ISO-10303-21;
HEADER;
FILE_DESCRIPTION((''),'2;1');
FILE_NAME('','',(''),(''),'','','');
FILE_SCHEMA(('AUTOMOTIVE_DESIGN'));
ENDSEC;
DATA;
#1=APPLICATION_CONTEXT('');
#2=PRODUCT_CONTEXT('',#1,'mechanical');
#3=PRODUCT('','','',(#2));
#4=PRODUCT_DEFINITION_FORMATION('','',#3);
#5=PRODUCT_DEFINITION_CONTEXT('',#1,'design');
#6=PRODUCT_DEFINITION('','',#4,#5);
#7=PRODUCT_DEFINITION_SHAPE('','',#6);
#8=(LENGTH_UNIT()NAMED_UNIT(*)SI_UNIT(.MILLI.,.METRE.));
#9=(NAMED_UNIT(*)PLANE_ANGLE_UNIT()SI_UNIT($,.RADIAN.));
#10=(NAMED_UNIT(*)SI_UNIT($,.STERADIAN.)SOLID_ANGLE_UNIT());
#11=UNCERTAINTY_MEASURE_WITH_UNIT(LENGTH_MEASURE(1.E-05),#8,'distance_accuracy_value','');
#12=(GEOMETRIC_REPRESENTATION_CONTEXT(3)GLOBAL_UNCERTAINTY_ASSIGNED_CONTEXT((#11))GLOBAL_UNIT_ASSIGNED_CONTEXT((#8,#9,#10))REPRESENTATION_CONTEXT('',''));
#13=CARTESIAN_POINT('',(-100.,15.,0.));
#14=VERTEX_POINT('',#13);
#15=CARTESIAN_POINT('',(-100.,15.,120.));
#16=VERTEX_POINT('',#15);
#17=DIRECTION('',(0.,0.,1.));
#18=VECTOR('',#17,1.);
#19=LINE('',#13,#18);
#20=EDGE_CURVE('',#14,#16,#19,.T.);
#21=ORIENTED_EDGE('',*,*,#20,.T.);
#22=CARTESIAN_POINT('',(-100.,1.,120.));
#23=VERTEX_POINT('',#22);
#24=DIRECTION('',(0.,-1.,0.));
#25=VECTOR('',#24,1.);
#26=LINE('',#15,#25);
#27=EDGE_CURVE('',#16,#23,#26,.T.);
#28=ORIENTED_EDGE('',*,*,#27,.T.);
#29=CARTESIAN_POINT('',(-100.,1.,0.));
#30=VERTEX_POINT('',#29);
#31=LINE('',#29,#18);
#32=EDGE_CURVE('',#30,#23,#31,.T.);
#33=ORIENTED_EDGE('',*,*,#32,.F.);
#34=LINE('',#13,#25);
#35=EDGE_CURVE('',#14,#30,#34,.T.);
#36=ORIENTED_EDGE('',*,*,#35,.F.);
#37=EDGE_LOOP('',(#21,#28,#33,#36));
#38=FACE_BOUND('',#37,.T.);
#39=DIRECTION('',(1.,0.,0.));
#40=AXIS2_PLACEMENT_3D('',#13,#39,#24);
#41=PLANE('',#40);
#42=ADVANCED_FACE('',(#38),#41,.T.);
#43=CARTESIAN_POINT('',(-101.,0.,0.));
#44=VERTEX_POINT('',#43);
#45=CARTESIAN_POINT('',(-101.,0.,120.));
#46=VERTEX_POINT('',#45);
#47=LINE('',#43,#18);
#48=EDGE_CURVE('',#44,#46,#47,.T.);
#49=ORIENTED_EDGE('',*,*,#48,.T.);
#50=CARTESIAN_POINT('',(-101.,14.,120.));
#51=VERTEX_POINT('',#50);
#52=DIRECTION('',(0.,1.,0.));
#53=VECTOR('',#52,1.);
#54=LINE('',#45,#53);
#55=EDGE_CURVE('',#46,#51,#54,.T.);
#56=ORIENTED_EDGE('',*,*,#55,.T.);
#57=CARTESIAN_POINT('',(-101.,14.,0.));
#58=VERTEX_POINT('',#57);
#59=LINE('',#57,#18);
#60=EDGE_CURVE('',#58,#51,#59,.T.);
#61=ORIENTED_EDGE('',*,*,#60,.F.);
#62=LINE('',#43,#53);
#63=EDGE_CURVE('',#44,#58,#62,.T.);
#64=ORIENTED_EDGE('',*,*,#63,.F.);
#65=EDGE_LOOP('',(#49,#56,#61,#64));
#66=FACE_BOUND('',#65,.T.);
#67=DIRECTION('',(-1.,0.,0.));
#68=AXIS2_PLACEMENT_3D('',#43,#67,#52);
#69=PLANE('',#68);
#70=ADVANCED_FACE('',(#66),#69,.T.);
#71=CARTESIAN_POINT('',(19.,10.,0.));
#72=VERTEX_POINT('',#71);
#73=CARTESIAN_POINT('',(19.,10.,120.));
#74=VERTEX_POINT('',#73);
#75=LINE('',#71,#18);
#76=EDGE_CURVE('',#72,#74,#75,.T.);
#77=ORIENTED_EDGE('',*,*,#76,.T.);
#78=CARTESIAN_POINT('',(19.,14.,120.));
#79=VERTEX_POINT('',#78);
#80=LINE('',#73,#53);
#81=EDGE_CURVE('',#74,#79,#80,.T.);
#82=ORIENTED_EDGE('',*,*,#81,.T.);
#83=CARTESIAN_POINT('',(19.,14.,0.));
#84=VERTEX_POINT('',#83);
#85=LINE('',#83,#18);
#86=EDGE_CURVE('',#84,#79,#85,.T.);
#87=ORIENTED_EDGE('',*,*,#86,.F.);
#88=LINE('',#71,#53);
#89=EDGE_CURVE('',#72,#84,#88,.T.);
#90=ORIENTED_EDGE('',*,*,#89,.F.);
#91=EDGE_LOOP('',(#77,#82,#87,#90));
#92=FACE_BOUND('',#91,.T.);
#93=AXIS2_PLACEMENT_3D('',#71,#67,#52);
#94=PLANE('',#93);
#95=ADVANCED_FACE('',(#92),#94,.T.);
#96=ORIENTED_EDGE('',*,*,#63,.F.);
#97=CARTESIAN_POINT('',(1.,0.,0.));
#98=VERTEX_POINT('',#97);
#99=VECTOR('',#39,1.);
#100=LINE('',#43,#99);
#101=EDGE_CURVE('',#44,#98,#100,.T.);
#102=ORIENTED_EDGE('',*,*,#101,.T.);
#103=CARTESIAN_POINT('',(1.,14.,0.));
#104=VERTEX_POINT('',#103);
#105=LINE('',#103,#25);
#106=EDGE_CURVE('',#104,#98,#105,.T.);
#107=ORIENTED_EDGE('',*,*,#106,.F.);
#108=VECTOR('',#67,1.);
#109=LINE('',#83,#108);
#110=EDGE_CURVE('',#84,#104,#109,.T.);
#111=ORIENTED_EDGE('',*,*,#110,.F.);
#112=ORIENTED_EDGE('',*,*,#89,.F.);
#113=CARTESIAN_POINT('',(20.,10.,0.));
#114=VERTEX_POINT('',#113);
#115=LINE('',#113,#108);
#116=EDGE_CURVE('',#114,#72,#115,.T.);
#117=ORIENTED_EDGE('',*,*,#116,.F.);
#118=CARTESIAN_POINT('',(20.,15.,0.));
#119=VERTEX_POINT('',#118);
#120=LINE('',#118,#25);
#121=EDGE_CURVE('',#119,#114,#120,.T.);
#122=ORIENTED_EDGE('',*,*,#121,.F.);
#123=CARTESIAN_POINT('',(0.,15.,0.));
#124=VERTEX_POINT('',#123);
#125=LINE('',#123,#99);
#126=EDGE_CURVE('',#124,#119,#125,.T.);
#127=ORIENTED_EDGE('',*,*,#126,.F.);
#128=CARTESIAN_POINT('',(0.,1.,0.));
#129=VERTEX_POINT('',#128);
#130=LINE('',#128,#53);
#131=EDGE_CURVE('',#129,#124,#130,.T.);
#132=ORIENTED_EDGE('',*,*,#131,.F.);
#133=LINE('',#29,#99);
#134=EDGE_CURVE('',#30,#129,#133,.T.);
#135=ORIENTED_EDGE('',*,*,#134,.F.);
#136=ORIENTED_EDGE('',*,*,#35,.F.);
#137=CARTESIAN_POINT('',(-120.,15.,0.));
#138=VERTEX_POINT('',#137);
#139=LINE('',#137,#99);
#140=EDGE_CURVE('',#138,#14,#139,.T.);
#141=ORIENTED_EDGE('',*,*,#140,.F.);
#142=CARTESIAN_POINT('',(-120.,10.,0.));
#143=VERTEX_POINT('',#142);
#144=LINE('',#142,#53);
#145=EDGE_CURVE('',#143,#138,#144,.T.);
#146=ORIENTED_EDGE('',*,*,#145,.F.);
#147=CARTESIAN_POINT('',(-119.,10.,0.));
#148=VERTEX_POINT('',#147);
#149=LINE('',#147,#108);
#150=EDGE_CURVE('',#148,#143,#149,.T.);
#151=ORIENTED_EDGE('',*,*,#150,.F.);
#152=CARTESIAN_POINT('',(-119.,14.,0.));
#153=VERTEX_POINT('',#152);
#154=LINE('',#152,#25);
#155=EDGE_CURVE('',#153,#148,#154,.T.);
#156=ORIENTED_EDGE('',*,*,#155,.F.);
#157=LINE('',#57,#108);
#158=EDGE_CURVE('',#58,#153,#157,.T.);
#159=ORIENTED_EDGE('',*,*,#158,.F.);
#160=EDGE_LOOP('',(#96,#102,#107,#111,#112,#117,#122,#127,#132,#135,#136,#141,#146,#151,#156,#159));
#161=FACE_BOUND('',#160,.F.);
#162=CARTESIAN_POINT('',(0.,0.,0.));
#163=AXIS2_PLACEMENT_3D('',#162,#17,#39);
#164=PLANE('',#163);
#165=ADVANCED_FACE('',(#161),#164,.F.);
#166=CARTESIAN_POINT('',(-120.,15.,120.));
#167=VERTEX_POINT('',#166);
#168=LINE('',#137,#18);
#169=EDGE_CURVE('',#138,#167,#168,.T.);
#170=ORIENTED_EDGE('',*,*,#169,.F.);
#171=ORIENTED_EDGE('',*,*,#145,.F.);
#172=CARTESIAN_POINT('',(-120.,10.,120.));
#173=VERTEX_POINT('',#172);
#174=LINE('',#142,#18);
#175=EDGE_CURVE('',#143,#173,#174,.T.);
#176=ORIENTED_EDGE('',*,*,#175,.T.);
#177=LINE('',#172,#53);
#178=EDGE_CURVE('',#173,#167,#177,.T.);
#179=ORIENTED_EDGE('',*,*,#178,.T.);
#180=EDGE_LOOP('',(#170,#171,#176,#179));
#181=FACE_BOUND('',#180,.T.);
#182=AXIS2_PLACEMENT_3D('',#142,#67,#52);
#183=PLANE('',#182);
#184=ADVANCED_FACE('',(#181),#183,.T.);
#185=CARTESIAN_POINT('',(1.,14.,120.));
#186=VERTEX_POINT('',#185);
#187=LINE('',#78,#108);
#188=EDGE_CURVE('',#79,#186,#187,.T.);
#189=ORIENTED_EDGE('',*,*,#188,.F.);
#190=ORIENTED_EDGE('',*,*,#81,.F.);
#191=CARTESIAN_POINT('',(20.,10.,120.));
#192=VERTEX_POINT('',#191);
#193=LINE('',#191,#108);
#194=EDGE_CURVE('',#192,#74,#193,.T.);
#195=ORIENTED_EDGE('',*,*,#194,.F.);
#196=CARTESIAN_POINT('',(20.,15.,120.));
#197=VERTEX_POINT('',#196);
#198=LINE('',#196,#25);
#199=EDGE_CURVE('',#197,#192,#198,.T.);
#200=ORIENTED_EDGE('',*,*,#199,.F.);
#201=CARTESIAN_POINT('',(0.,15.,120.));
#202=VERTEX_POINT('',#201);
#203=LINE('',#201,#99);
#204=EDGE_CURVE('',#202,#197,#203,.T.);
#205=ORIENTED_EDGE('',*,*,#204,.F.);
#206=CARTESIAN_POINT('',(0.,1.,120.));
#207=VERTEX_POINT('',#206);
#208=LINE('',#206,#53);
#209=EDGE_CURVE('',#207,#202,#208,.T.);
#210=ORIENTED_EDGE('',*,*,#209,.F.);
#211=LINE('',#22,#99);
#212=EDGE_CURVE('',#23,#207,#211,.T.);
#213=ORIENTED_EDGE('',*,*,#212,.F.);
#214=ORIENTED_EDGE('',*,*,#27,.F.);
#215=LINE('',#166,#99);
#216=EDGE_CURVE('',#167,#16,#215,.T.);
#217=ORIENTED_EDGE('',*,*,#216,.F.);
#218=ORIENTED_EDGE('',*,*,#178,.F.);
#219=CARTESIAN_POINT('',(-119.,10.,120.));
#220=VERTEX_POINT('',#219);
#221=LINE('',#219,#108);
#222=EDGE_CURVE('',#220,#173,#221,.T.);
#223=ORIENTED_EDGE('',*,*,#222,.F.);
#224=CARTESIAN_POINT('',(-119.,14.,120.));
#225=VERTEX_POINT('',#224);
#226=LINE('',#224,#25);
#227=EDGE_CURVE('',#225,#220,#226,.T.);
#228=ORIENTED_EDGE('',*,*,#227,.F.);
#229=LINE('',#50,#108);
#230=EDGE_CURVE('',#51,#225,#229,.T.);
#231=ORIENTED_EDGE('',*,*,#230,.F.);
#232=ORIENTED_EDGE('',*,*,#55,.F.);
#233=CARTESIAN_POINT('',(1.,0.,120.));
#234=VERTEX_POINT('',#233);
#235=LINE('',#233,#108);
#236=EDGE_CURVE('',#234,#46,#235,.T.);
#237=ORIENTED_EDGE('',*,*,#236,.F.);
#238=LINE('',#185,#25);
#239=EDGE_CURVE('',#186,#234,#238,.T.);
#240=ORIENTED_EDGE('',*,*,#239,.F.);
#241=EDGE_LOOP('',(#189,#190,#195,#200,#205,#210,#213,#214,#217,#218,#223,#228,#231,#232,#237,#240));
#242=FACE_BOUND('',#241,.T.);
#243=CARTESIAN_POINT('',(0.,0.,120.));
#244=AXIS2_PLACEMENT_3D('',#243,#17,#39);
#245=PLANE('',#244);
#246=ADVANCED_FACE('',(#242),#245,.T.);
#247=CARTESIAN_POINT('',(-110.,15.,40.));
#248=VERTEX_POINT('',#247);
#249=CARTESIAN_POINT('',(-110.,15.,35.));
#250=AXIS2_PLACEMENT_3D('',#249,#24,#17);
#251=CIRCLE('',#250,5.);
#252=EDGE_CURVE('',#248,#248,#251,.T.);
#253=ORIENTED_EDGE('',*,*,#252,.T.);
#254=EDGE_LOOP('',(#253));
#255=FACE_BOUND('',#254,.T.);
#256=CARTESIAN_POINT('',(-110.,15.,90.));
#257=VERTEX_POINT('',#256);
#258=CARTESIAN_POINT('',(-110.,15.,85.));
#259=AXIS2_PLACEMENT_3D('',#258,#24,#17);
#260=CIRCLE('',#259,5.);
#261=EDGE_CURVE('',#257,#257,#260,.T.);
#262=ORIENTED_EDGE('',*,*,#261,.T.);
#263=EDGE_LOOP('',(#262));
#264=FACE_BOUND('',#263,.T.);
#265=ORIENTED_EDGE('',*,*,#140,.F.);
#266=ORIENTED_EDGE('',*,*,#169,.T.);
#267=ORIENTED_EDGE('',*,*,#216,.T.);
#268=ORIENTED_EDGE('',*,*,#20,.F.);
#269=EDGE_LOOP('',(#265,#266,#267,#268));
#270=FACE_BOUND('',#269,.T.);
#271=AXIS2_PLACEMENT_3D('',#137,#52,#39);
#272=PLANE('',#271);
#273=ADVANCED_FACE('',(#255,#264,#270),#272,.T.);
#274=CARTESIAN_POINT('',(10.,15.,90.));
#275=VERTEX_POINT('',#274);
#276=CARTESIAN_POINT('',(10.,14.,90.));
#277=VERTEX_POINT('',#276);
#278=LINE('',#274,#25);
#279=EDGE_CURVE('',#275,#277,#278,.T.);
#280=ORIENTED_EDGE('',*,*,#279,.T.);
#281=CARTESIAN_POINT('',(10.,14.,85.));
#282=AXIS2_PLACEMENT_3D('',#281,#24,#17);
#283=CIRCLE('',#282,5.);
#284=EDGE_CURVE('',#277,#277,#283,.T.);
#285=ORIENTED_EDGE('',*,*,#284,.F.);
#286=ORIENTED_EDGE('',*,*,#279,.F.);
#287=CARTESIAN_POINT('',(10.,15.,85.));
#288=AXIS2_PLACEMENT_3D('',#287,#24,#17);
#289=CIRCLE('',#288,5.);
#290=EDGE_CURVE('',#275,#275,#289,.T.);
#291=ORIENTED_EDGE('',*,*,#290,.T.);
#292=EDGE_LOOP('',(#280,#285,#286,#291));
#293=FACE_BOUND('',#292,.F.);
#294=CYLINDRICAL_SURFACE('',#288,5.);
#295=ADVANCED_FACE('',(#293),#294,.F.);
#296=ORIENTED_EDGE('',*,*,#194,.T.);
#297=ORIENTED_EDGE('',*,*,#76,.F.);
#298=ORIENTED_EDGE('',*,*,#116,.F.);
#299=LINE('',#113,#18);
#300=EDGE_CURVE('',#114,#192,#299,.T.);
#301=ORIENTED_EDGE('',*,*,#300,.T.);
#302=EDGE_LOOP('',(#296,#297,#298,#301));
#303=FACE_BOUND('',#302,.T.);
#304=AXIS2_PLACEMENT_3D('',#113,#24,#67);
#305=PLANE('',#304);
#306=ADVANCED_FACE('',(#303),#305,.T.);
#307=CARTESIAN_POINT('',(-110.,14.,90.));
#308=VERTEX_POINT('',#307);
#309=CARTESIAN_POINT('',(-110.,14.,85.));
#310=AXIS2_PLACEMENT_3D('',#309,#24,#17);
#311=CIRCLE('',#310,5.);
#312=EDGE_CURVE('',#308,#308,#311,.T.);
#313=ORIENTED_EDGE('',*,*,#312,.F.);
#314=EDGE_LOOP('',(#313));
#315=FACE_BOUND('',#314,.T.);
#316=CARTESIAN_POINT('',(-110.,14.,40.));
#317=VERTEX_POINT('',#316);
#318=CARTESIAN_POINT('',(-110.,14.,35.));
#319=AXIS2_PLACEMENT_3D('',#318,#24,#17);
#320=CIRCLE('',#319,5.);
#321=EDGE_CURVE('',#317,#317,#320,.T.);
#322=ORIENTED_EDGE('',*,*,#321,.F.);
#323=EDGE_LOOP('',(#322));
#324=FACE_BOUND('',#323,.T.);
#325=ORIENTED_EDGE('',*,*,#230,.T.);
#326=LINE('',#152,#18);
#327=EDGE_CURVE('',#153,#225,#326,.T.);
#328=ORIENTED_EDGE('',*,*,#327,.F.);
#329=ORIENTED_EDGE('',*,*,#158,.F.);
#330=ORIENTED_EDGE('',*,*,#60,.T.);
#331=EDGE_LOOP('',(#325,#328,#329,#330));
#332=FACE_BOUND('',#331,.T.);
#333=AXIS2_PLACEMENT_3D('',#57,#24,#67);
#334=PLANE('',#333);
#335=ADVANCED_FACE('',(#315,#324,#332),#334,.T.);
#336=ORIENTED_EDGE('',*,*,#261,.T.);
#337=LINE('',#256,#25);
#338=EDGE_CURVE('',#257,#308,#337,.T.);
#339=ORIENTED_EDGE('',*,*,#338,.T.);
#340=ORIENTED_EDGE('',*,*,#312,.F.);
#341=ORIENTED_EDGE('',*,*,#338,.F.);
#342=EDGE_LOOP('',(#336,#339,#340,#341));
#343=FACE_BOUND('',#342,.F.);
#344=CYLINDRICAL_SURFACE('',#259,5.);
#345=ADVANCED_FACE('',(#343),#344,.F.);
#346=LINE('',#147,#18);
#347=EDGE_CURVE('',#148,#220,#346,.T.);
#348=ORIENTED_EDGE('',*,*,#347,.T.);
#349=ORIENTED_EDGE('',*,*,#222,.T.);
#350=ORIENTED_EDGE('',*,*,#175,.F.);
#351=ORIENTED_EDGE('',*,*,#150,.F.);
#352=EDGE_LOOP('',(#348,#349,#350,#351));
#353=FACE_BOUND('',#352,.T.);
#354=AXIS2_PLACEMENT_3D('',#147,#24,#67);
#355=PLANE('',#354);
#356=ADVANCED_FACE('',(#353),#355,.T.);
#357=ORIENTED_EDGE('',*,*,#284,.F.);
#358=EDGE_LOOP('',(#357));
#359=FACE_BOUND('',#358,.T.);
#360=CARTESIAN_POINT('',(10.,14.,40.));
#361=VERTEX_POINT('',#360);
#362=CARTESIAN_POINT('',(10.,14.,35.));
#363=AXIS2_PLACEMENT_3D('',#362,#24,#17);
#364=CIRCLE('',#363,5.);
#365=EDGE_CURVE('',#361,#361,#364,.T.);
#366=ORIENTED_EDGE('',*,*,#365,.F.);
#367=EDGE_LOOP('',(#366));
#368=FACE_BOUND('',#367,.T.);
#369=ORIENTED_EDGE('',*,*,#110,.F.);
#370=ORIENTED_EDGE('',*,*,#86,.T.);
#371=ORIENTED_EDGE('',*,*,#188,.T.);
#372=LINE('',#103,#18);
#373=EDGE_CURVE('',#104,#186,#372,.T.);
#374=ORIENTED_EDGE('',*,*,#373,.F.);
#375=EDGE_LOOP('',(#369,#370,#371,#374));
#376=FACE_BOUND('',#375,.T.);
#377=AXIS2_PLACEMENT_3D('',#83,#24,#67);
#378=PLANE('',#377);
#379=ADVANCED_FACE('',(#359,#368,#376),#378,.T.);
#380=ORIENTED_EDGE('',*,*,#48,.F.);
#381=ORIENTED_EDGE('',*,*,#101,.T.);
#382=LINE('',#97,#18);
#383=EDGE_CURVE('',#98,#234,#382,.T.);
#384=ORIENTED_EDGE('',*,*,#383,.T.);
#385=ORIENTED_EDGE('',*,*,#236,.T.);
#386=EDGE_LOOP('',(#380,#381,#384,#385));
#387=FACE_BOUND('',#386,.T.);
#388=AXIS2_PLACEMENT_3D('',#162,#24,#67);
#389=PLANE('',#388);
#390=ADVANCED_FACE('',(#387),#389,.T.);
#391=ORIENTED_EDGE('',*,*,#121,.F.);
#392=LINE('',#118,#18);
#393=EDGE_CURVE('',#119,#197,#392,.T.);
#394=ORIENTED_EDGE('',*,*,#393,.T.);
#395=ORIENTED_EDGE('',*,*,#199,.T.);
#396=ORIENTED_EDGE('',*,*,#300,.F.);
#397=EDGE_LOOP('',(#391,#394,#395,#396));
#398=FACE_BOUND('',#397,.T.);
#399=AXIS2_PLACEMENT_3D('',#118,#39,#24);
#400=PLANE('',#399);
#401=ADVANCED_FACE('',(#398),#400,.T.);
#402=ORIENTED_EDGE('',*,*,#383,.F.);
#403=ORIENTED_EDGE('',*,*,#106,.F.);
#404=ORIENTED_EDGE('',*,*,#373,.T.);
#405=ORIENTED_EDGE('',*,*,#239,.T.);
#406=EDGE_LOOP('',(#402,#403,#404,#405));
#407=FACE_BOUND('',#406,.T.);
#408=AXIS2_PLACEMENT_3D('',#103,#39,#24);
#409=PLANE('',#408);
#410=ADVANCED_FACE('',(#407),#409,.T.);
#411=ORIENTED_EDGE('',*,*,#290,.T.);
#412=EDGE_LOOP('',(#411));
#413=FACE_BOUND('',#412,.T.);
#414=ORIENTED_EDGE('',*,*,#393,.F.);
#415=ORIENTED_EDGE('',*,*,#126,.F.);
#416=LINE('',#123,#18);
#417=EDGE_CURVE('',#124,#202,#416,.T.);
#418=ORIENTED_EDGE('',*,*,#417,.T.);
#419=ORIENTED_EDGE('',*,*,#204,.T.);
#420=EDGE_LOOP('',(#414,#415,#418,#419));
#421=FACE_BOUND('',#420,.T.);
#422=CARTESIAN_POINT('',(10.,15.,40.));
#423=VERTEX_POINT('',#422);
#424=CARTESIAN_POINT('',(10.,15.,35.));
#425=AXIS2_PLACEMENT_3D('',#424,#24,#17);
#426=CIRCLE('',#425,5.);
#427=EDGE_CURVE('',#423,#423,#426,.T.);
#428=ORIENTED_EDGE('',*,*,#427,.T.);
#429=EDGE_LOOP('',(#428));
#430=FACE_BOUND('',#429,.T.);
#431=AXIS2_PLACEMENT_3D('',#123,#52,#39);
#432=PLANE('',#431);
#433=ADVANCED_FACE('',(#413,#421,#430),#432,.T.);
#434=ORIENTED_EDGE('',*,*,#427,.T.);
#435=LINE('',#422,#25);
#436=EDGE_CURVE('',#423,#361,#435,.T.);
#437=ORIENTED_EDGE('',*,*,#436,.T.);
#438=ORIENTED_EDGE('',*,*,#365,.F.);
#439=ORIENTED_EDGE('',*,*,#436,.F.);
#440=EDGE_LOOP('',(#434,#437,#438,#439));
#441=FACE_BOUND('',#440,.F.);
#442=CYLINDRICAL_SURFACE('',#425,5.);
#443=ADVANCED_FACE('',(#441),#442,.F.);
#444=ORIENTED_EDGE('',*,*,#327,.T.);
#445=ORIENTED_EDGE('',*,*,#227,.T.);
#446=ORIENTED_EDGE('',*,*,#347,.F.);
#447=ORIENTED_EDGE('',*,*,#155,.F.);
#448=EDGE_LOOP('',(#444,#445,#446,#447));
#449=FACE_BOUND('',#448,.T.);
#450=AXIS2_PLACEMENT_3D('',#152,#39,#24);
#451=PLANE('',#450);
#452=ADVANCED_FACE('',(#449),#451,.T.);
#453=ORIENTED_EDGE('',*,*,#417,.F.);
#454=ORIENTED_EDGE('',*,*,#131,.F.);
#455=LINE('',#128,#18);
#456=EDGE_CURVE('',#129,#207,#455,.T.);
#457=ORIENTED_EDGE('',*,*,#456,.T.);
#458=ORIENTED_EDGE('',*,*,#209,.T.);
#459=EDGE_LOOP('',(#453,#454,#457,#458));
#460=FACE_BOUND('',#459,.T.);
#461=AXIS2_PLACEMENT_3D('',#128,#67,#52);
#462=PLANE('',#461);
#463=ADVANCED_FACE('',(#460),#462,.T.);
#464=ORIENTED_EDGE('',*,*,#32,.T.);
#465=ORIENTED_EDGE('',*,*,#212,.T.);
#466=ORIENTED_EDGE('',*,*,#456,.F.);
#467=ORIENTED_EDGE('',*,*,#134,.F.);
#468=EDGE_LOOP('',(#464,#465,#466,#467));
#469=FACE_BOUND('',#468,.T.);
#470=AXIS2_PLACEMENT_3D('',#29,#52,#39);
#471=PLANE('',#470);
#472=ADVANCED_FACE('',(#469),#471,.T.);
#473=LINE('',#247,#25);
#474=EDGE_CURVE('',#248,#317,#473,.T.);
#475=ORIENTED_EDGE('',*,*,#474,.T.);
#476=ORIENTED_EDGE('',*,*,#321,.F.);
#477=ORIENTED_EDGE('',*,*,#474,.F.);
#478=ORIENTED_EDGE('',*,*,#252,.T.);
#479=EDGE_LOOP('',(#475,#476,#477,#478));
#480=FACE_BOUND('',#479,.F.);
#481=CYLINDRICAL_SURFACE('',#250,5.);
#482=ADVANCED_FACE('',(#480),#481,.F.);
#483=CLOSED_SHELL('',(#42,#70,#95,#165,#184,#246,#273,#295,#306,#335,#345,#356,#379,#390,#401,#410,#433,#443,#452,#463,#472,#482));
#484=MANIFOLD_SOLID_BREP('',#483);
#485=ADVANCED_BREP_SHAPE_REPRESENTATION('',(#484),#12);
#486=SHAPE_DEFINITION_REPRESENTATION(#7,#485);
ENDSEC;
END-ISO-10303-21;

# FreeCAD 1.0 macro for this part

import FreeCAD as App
import Part
import Sketcher


def add_polygon(sketch, points):
    """Adds a closed chain of lines whose ends are joined by coincident constraints."""
    first, n = sketch.GeometryCount, len(points)
    for a, b in zip(points, points[1:] + points[:1]):
        sketch.addGeometry(Part.LineSegment(App.Vector(*a, 0), App.Vector(*b, 0)), False)
    for i in range(n):
        sketch.addConstraint(Sketcher.Constraint("Coincident", first + i, 2, first + (i + 1) % n, 1))

doc = App.newDocument("Part")
body = doc.addObject("PartDesign::Body", "Body")

# Sketch on XY plane
sketch1 = body.newObject("Sketcher::SketchObject", "Sketch")
sketch1.AttachmentSupport = (doc.getObject("XY_Plane"), [""])
sketch1.MapMode = "FlatFace"
add_polygon(sketch1, [(-101, 0), (1, 0), (1, 14), (19, 14), (19, 10), (20, 10), (20, 15), (0, 15), (0, 1), (-100, 1), (-100, 15), (-120, 15), (-120, 10), (-119, 10), (-119, 14), (-101, 14)])  # lines 0-15
sketch1.addConstraint([
    Sketcher.Constraint("Horizontal", 0),
    Sketcher.Constraint("Vertical", 1),
    Sketcher.Constraint("Horizontal", 2),
    Sketcher.Constraint("Vertical", 3),
    Sketcher.Constraint("Horizontal", 4),
    Sketcher.Constraint("Vertical", 5),
    Sketcher.Constraint("Horizontal", 6),
    Sketcher.Constraint("Vertical", 7),
    Sketcher.Constraint("Horizontal", 8),
    Sketcher.Constraint("Vertical", 9),
    Sketcher.Constraint("Horizontal", 10),
    Sketcher.Constraint("Vertical", 11),
    Sketcher.Constraint("Horizontal", 12),
    Sketcher.Constraint("Vertical", 13),
    Sketcher.Constraint("Horizontal", 14),
    Sketcher.Constraint("Vertical", 15),
    Sketcher.Constraint("PointOnObject", 0, 2, -1),
    Sketcher.Constraint("PointOnObject", 6, 2, -2),
    Sketcher.Constraint("Horizontal", 6, 2, 9, 2),
    Sketcher.Constraint("Horizontal", 4, 2, 11, 2),
    Sketcher.Constraint("Horizontal", 2, 2, 13, 2),
    Sketcher.Constraint("Equal", 6, 10),
    Sketcher.Constraint("Equal", 4, 12),
    Sketcher.Constraint("Equal", 2, 14),
    Sketcher.Constraint("Equal", 1, 7),
    Sketcher.Constraint("DistanceX", 0, 1, 0, 2, 102.0),
    Sketcher.Constraint("DistanceX", 2, 1, 2, 2, 18.0),
    Sketcher.Constraint("DistanceX", 4, 1, 4, 2, 1.0),
    Sketcher.Constraint("DistanceX", 6, 2, 6, 1, 20.0),
    Sketcher.Constraint("DistanceY", 1, 1, 1, 2, 14.0),
    Sketcher.Constraint("DistanceY", 3, 2, 3, 1, 4.0),
    Sketcher.Constraint("DistanceY", 5, 1, 5, 2, 5.0),
])
pad1 = body.newObject("PartDesign::Pad", "Pad")
pad1.Profile = sketch1
pad1.Length = 120

# Sketch on XZ plane
sketch2 = body.newObject("Sketcher::SketchObject", "Sketch001")
sketch2.AttachmentSupport = (doc.getObject("XZ_Plane"), [""])
sketch2.MapMode = "FlatFace"
sketch2.AttachmentOffset = App.Placement(App.Vector(0, 0, -15), App.Rotation())
sketch2.addGeometry([
    Part.Circle(App.Vector(10, 85, 0), App.Vector(0, 0, 1), 5),
    Part.Circle(App.Vector(10, 35, 0), App.Vector(0, 0, 1), 5),
    Part.Circle(App.Vector(-110, 35, 0), App.Vector(0, 0, 1), 5),
    Part.Circle(App.Vector(-110, 85, 0), App.Vector(0, 0, 1), 5),
], False)
sketch2.addConstraint([
    Sketcher.Constraint("Equal", 0, 1),
    Sketcher.Constraint("Equal", 1, 2),
    Sketcher.Constraint("Equal", 2, 3),
    Sketcher.Constraint("Horizontal", 1, 3, 2, 3),
    Sketcher.Constraint("Horizontal", 0, 3, 3, 3),
    Sketcher.Constraint("Vertical", 0, 3, 1, 3),
    Sketcher.Constraint("Vertical", 2, 3, 3, 3),
    Sketcher.Constraint("Diameter", 0, 10.0),
    Sketcher.Constraint("DistanceX", -1, 1, 0, 3, 10.0),
    Sketcher.Constraint("DistanceY", -1, 1, 0, 3, 85.0),
    Sketcher.Constraint("DistanceY", -1, 1, 1, 3, 35.0),
    Sketcher.Constraint("DistanceX", 2, 3, -1, 1, 110.0),
])
doc.recompute()
hole = body.newObject("PartDesign::Hole", "Hole")
hole.Profile = sketch2
hole.ThreadType = "None"
hole.Diameter = 10
hole.DepthType = "ThroughAll"
hole.Reversed = True

doc.recompute()
